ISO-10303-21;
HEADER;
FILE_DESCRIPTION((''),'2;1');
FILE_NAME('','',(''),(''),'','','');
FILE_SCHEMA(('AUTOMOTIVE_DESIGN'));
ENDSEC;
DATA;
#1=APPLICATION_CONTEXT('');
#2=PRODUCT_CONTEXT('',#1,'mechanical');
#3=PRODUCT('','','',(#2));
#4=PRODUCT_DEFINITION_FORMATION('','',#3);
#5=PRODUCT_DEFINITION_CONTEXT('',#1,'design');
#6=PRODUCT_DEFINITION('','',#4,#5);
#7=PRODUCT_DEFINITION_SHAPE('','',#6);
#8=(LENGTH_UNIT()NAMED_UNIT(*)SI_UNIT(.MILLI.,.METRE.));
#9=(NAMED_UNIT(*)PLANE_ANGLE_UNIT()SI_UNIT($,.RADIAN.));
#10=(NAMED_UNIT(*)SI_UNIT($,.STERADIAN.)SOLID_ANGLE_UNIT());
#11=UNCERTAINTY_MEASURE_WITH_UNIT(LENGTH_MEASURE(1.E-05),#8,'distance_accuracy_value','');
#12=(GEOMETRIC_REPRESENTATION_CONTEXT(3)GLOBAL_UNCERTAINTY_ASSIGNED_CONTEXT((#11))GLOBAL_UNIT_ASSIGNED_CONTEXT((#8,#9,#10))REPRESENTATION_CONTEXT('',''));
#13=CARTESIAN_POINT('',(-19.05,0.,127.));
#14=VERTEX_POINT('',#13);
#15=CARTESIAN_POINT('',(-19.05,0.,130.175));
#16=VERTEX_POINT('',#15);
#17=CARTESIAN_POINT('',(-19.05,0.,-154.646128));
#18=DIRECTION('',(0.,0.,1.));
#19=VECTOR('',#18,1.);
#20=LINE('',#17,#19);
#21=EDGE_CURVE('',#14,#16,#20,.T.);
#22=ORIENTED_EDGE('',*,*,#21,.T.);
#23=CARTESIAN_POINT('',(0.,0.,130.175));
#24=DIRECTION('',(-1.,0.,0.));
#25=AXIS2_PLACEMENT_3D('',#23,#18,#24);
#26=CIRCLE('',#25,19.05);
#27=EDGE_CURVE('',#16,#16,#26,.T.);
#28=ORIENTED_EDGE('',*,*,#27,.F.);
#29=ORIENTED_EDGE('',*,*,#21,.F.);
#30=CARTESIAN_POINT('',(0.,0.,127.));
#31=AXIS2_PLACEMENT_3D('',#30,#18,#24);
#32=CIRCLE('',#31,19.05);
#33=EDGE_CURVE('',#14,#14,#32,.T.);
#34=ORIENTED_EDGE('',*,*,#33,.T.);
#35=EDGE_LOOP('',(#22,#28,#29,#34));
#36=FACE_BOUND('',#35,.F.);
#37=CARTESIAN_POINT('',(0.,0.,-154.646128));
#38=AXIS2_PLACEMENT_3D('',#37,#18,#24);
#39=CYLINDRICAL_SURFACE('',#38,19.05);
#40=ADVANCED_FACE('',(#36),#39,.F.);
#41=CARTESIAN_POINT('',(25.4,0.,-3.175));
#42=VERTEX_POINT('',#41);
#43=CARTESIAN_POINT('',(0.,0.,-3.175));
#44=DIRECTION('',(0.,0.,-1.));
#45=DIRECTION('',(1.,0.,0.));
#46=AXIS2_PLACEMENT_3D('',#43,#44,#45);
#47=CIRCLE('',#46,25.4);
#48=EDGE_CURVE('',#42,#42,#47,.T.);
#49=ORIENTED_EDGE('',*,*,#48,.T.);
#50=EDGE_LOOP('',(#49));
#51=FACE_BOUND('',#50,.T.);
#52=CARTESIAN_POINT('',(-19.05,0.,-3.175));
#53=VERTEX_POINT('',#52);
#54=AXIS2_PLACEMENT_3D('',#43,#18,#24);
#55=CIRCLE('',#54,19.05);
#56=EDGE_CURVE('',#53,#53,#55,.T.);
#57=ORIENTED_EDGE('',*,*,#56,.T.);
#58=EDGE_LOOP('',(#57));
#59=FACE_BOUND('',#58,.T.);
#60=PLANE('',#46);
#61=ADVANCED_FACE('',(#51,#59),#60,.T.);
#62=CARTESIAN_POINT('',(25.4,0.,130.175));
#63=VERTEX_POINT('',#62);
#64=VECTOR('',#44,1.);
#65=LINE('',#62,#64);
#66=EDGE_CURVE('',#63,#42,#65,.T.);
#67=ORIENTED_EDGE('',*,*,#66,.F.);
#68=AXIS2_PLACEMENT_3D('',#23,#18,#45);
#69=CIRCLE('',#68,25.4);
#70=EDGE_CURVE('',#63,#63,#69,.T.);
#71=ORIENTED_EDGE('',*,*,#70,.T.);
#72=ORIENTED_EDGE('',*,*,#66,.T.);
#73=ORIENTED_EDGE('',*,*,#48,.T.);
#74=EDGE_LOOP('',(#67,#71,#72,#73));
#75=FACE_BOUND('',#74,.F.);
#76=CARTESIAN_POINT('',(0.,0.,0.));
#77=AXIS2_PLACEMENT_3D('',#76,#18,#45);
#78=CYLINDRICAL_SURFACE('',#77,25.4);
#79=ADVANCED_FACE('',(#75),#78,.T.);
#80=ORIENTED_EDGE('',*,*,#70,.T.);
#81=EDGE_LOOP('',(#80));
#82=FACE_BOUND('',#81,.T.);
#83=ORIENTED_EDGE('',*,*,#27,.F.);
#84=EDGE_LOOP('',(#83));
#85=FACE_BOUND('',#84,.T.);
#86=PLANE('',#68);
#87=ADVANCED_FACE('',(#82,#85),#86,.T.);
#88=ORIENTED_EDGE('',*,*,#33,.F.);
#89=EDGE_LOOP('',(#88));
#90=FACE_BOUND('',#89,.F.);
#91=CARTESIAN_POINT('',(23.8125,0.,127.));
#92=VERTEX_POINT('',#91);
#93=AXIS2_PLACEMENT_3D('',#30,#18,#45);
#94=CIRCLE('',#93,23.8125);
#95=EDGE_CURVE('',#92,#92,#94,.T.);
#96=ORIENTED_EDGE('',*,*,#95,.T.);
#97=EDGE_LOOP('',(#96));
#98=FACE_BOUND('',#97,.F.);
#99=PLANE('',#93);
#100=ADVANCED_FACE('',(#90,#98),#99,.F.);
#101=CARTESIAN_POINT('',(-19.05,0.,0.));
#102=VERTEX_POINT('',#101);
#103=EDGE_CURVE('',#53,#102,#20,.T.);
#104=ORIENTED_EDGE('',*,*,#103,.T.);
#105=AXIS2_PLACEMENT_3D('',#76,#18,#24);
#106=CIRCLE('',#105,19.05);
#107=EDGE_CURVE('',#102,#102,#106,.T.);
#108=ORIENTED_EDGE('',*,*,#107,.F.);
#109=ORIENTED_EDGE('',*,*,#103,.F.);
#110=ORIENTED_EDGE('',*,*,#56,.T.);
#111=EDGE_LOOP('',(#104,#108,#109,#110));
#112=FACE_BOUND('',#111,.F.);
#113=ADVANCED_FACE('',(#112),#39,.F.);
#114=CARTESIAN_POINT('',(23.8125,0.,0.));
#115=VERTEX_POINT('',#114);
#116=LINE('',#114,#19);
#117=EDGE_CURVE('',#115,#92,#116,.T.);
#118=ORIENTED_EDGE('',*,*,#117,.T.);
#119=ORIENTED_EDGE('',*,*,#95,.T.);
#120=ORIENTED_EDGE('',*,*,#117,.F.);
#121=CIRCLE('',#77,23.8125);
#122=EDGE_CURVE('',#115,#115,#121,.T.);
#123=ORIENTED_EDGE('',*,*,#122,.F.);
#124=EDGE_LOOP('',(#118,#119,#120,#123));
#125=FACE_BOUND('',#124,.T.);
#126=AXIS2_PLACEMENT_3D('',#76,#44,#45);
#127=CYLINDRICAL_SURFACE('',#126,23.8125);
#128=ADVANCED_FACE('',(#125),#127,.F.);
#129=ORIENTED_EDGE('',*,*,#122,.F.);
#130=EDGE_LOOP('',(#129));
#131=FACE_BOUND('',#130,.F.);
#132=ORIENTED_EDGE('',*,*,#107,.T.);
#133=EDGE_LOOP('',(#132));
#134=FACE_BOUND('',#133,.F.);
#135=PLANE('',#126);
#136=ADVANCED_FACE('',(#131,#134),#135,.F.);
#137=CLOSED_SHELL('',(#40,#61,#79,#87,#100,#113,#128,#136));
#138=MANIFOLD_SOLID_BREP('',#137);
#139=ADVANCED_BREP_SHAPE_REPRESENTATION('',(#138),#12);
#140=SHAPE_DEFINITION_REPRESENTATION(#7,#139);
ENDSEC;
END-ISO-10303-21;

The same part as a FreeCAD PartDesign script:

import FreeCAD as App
import Part
import Sketcher

V = App.Vector
Q = App.Units.Quantity

doc = App.newDocument("Part")
body = doc.addObject("PartDesign::Body", "Body")

sketch1 = doc.addObject("Sketcher::SketchObject", "Sketch")
body.addObject(sketch1)
sketch1.AttachmentSupport = (doc.XY_Plane, [""])
sketch1.MapMode = "FlatFace"
sketch1.addGeometry([
    Part.Circle(V(0, 0, 0), V(0, 0, 1), 25.4),
    Part.Circle(V(0, 0, 0), V(0, 0, 1), 23.8125),
], False)
sketch1.addConstraint([
    Sketcher.Constraint("Coincident", 0, 3, -1, 1),
    Sketcher.Constraint("Coincident", 1, 3, -1, 1),
    Sketcher.Constraint("Diameter", 0, Q("2 in")),
    Sketcher.Constraint("Diameter", 1, Q("1.875 in")),
])
pad1 = doc.addObject("PartDesign::Pad", "Pad")
body.addObject(pad1)
pad1.Profile = sketch1
pad1.Length = Q("5 in")

sketch2 = doc.addObject("Sketcher::SketchObject", "Sketch001")
body.addObject(sketch2)
sketch2.AttachmentSupport = (doc.XY_Plane, [""])
sketch2.MapMode = "FlatFace"
sketch2.AttachmentOffset = App.Placement(V(0, 0, 5 * 25.4), App.Rotation())
sketch2.addGeometry(Part.Circle(V(0, 0, 0), V(0, 0, 1), 25.4), False)
sketch2.addConstraint([
    Sketcher.Constraint("Coincident", 0, 3, -1, 1),
    Sketcher.Constraint("Diameter", 0, Q("2 in")),
])
pad2 = doc.addObject("PartDesign::Pad", "Pad001")
body.addObject(pad2)
pad2.Profile = sketch2
pad2.Length = Q("0.125 in")

sketch3 = doc.addObject("Sketcher::SketchObject", "Sketch002")
body.addObject(sketch3)
sketch3.AttachmentSupport = (doc.XY_Plane, [""])
sketch3.MapMode = "FlatFace"
sketch3.addGeometry(Part.Circle(V(0, 0, 0), V(0, 0, 1), 25.4), False)
sketch3.addConstraint([
    Sketcher.Constraint("Coincident", 0, 3, -1, 1),
    Sketcher.Constraint("Diameter", 0, Q("2 in")),
])
pad3 = doc.addObject("PartDesign::Pad", "Pad002")
body.addObject(pad3)
pad3.Profile = sketch3
pad3.Length = Q("0.125 in")
pad3.Reversed = True

sketch4 = doc.addObject("Sketcher::SketchObject", "Sketch003")
body.addObject(sketch4)
sketch4.AttachmentSupport = (doc.XY_Plane, [""])
sketch4.MapMode = "FlatFace"
sketch4.AttachmentOffset = App.Placement(V(0, 0, -0.125 * 25.4), App.Rotation())
sketch4.addGeometry(Part.Circle(V(0, 0, 0), V(0, 0, 1), 19.05), False)
sketch4.addConstraint([
    Sketcher.Constraint("Coincident", 0, 3, -1, 1),
    Sketcher.Constraint("Diameter", 0, Q("1.5 in")),
])
doc.recompute()
hole = doc.addObject("PartDesign::Hole", "Hole")
body.addObject(hole)
hole.Profile = sketch4
hole.ThreadType = "None"
hole.Diameter = Q("1.5 in")
hole.DepthType = "ThroughAll"
hole.Reversed = True

doc.recompute()
